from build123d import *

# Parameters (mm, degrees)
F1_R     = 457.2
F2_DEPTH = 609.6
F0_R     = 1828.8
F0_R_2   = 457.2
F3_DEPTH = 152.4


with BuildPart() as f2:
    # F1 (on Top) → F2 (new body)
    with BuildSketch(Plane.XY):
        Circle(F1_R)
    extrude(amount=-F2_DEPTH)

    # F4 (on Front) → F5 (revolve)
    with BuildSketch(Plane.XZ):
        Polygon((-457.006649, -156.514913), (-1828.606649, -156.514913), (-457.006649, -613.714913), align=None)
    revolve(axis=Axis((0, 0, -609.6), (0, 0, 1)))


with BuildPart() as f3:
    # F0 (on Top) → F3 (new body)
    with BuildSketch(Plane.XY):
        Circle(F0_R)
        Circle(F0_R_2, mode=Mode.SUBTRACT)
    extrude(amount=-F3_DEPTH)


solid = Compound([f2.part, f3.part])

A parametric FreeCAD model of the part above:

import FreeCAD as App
import Part
import Sketcher
from FreeCAD import Vector
Q = App.Units.Quantity


def add_polygon(sketch, points):
    """Adds a closed chain of lines whose ends are joined by coincident constraints."""
    first, n = sketch.GeometryCount, len(points)
    for a, b in zip(points, points[1:] + points[:1]):
        sketch.addGeometry(Part.LineSegment(App.Vector(*a, 0), App.Vector(*b, 0)), False)
    for i in range(n):
        sketch.addConstraint(Sketcher.Constraint("Coincident", first + i, 2, first + (i + 1) % n, 1))

doc = App.newDocument("Part")
body = doc.addObject("PartDesign::Body", "Body")

# Sketch on XY plane
sketch1 = doc.addObject("Sketcher::SketchObject", "Sketch")
body.addObject(sketch1)
sketch1.AttachmentSupport = (doc.XY_Plane, [""])
sketch1.MapMode = "FlatFace"
sketch1.addGeometry(Part.Circle(Vector(0, 0, 0), Vector(0, 0, 1), 457), False)
sketch1.addConstraint([
    Sketcher.Constraint("Coincident", 0, 3, -1, 1),
    Sketcher.Constraint("Diameter", 0, Q("36 in")),
])
pad1 = doc.addObject("PartDesign::Pad", "Pad")
body.addObject(pad1)
pad1.Profile = sketch1
pad1.Length = Q("24 in")
pad1.Reversed = True

# Sketch on XZ plane
sketch2 = doc.addObject("Sketcher::SketchObject", "Sketch001")
body.addObject(sketch2)
sketch2.AttachmentSupport = (doc.XZ_Plane, [""])
sketch2.MapMode = "FlatFace"
add_polygon(sketch2, [(-457, -157), (-1829, -157), (-457, -614)])  # lines 0-2
sketch2.addConstraint([
    Sketcher.Constraint("Horizontal", 0),
    Sketcher.Constraint("Vertical", 2),
    Sketcher.Constraint("DistanceX", 0, 2, 0, 1, Q("54 in")),
    Sketcher.Constraint("DistanceY", 2, 1, 2, 2, Q("18 in")),
    Sketcher.Constraint("DistanceX", 0, 2, -1, 1, Q("1828.606649 mm")),
    Sketcher.Constraint("DistanceY", 0, 2, -1, 1, Q("156.514913 mm")),
])
revolution = doc.addObject("PartDesign::Revolution", "Revolution")
body.addObject(revolution)
revolution.Profile = sketch2
revolution.ReferenceAxis = (sketch2, ["V_Axis"])
revolution.Angle = 360
body2 = doc.addObject("PartDesign::Body", "Body001")

# Sketch on XY plane
sketch3 = doc.addObject("Sketcher::SketchObject", "Sketch002")
body2.addObject(sketch3)
sketch3.AttachmentSupport = (doc.getObject("XY_Plane001"), [""])
sketch3.MapMode = "FlatFace"
sketch3.addGeometry([
    Part.Circle(Vector(0, 0, 0), Vector(0, 0, 1), 1829),
    Part.Circle(Vector(0, 0, 0), Vector(0, 0, 1), 457),
], False)
sketch3.addConstraint([
    Sketcher.Constraint("Coincident", 0, 3, -1, 1),
    Sketcher.Constraint("Coincident", 1, 3, -1, 1),
    Sketcher.Constraint("Diameter", 0, Q("144 in")),
    Sketcher.Constraint("Diameter", 1, Q("36 in")),
])
pad2 = doc.addObject("PartDesign::Pad", "Pad001")
body2.addObject(pad2)
pad2.Profile = sketch3
pad2.Length = Q("6 in")
pad2.Reversed = True

doc.recompute()
